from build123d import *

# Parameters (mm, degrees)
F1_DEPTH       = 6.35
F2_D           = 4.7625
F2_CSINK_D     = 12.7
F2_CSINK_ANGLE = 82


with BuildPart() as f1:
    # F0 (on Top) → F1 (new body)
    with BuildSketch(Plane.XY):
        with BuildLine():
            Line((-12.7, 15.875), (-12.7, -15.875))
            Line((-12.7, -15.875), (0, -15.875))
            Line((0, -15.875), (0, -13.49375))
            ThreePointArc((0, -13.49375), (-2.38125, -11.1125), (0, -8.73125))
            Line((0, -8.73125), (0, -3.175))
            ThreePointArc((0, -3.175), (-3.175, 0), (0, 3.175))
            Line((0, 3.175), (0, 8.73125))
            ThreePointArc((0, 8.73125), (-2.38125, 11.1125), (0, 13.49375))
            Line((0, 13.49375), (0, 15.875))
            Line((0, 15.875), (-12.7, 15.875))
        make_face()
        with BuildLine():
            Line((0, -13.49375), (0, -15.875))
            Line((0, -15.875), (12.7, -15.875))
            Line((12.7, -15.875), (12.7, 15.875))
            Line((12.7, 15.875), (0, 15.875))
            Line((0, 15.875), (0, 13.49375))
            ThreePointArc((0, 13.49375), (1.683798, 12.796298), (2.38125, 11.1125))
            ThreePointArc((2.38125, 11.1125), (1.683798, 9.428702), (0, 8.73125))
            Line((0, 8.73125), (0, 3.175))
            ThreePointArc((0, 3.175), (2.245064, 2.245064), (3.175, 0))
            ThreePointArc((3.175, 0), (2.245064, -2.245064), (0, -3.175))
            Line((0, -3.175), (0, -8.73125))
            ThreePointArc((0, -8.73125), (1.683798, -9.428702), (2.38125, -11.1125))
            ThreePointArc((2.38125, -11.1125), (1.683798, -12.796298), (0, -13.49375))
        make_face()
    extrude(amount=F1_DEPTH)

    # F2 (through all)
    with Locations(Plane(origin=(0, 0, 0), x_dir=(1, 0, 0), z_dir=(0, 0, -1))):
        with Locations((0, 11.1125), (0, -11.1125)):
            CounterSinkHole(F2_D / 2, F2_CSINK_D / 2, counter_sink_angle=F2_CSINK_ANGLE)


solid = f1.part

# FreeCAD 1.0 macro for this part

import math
import FreeCAD as App
import Part
import Sketcher
Q = App.Units.Quantity


def add_polygon(sketch, points):
    """Adds a closed chain of lines whose ends are joined by coincident constraints."""
    first, n = sketch.GeometryCount, len(points)
    for a, b in zip(points, points[1:] + points[:1]):
        sketch.addGeometry(Part.LineSegment(App.Vector(*a, 0), App.Vector(*b, 0)), False)
    for i in range(n):
        sketch.addConstraint(Sketcher.Constraint("Coincident", first + i, 2, first + (i + 1) % n, 1))

doc = App.newDocument("Part")
body = doc.addObject("PartDesign::Body", "Body")

# Sketch on XY plane
sketch1 = body.newObject("Sketcher::SketchObject", "Sketch")
sketch1.AttachmentSupport = (doc.getObject("XY_Plane"), [""])
sketch1.MapMode = "FlatFace"
add_polygon(sketch1, [(-12.7, 15.9), (-12.7, -15.9), (12.7, -15.9), (12.7, 15.9)])  # lines 0-3
sketch1.addGeometry(Part.ArcOfCircle(Part.Circle(App.Vector(0, -11.1, 0), App.Vector(0, 0, 1), 2.4), math.radians(90), math.radians(270)), False)  # 4
sketch1.addGeometry(Part.ArcOfCircle(Part.Circle(App.Vector(0, -11.1, 0), App.Vector(0, 0, 1), 2.4), math.radians(0), math.radians(90)), False)  # 5
sketch1.addGeometry(Part.ArcOfCircle(Part.Circle(App.Vector(0, -11.1, 0), App.Vector(0, 0, 1), 2.4), math.radians(-90), math.radians(0)), False)  # 6
sketch1.addGeometry(Part.ArcOfCircle(Part.Circle(App.Vector(0, 0, 0), App.Vector(0, 0, 1), 3.2), math.radians(90), math.radians(270)), False)  # 7
sketch1.addGeometry(Part.ArcOfCircle(Part.Circle(App.Vector(0, 0, 0), App.Vector(0, 0, 1), 3.2), math.radians(0), math.radians(90)), False)  # 8
sketch1.addGeometry(Part.ArcOfCircle(Part.Circle(App.Vector(0, 0, 0), App.Vector(0, 0, 1), 3.2), math.radians(-90), math.radians(0)), False)  # 9
sketch1.addGeometry(Part.ArcOfCircle(Part.Circle(App.Vector(0, 11.1, 0), App.Vector(0, 0, 1), 2.4), math.radians(90), math.radians(270)), False)  # 10
sketch1.addGeometry(Part.ArcOfCircle(Part.Circle(App.Vector(0, 11.1, 0), App.Vector(0, 0, 1), 2.4), math.radians(0), math.radians(90)), False)  # 11
sketch1.addGeometry(Part.ArcOfCircle(Part.Circle(App.Vector(0, 11.1, 0), App.Vector(0, 0, 1), 2.4), math.radians(-90), math.radians(0)), False)  # 12
sketch1.addConstraint(Sketcher.Constraint("Tangent", 4, 1, 5, 2))
sketch1.addConstraint(Sketcher.Constraint("Tangent", 5, 1, 6, 2))
sketch1.addConstraint(Sketcher.Constraint("Tangent", 6, 1, 4, 2))
sketch1.addConstraint(Sketcher.Constraint("Tangent", 7, 1, 8, 2))
sketch1.addConstraint(Sketcher.Constraint("Tangent", 8, 1, 9, 2))
sketch1.addConstraint(Sketcher.Constraint("Tangent", 9, 1, 7, 2))
sketch1.addConstraint(Sketcher.Constraint("Tangent", 10, 1, 11, 2))
sketch1.addConstraint(Sketcher.Constraint("Tangent", 11, 1, 12, 2))
sketch1.addConstraint(Sketcher.Constraint("Tangent", 12, 1, 10, 2))
sketch1.addConstraint(Sketcher.Constraint("Vertical", 0))
sketch1.addConstraint(Sketcher.Constraint("Horizontal", 1))
sketch1.addConstraint(Sketcher.Constraint("Vertical", 2))
sketch1.addConstraint(Sketcher.Constraint("Horizontal", 3))
sketch1.addConstraint(Sketcher.Constraint("Coincident", 7, 3, -1, 1))
sketch1.addConstraint(Sketcher.Constraint("Equal", 6, 10))
sketch1.addConstraint(Sketcher.Constraint("Symmetric", 4, 3, 10, 3, -1, 1))
sketch1.addConstraint(Sketcher.Constraint("Symmetric", 0, 2, 2, 2, -1, 1))
sketch1.addConstraint(Sketcher.Constraint("Symmetric", 5, 1, 11, 1, -1))
sketch1.addConstraint(Sketcher.Constraint("PointOnObject", 4, 1, -2))
sketch1.addConstraint(Sketcher.Constraint("PointOnObject", 6, 1, -2))
sketch1.addConstraint(Sketcher.Constraint("PointOnObject", 7, 1, -2))
sketch1.addConstraint(Sketcher.Constraint("PointOnObject", 8, 1, -1))
sketch1.addConstraint(Sketcher.Constraint("PointOnObject", 9, 1, -2))
sketch1.addConstraint(Sketcher.Constraint("PointOnObject", 10, 1, -2))
sketch1.addConstraint(Sketcher.Constraint("PointOnObject", 12, 1, -2))
sketch1.addConstraint(Sketcher.Constraint("Horizontal", 6, 3, 5, 1))
sketch1.addConstraint(Sketcher.Constraint("DistanceX", 1, 1, 1, 2, Q("1 in")))
sketch1.addConstraint(Sketcher.Constraint("Radius", 4, Q("0.09375 in")))
sketch1.addConstraint(Sketcher.Constraint("Radius", 7, Q("0.125 in")))
sketch1.addConstraint(Sketcher.Constraint("DistanceY", 0, 2, 0, 1, Q("1.25 in")))
sketch1.addConstraint(Sketcher.Constraint("DistanceY", 4, 3, -1, 1, Q("0.4375 in")))
pad1 = body.newObject("PartDesign::Pad", "Pad")
pad1.Profile = sketch1
pad1.Length = Q("0.25 in")

# Sketch on XY plane
sketch2 = body.newObject("Sketcher::SketchObject", "Sketch001")
sketch2.AttachmentSupport = (doc.getObject("XY_Plane"), [""])
sketch2.MapMode = "FlatFace"
sketch2.addGeometry(Part.Circle(App.Vector(0, -11.1, 0), App.Vector(0, 0, 1), 2.4), False)
sketch2.addGeometry(Part.Circle(App.Vector(0, 11.1, 0), App.Vector(0, 0, 1), 2.4), False)
sketch2.addConstraint(Sketcher.Constraint("Equal", 0, 1))
sketch2.addConstraint(Sketcher.Constraint("Symmetric", 0, 3, 1, 3, -1, 1))
sketch2.addConstraint(Sketcher.Constraint("PointOnObject", 0, 3, -2))
sketch2.addConstraint(Sketcher.Constraint("Diameter", 0, Q("0.1875 in")))
sketch2.addConstraint(Sketcher.Constraint("DistanceY", 0, 3, -1, 1, Q("0.4375 in")))
doc.recompute()
hole = body.newObject("PartDesign::Hole", "Hole")
hole.Profile = sketch2
hole.ThreadType = "None"
hole.Diameter = Q("0.1875 in")
hole.DepthType = "ThroughAll"
hole.HoleCutType = "Countersink"
hole.HoleCutDiameter = Q("0.5 in")
hole.HoleCutCountersinkAngle = 82
hole.Reversed = True

doc.recompute()
